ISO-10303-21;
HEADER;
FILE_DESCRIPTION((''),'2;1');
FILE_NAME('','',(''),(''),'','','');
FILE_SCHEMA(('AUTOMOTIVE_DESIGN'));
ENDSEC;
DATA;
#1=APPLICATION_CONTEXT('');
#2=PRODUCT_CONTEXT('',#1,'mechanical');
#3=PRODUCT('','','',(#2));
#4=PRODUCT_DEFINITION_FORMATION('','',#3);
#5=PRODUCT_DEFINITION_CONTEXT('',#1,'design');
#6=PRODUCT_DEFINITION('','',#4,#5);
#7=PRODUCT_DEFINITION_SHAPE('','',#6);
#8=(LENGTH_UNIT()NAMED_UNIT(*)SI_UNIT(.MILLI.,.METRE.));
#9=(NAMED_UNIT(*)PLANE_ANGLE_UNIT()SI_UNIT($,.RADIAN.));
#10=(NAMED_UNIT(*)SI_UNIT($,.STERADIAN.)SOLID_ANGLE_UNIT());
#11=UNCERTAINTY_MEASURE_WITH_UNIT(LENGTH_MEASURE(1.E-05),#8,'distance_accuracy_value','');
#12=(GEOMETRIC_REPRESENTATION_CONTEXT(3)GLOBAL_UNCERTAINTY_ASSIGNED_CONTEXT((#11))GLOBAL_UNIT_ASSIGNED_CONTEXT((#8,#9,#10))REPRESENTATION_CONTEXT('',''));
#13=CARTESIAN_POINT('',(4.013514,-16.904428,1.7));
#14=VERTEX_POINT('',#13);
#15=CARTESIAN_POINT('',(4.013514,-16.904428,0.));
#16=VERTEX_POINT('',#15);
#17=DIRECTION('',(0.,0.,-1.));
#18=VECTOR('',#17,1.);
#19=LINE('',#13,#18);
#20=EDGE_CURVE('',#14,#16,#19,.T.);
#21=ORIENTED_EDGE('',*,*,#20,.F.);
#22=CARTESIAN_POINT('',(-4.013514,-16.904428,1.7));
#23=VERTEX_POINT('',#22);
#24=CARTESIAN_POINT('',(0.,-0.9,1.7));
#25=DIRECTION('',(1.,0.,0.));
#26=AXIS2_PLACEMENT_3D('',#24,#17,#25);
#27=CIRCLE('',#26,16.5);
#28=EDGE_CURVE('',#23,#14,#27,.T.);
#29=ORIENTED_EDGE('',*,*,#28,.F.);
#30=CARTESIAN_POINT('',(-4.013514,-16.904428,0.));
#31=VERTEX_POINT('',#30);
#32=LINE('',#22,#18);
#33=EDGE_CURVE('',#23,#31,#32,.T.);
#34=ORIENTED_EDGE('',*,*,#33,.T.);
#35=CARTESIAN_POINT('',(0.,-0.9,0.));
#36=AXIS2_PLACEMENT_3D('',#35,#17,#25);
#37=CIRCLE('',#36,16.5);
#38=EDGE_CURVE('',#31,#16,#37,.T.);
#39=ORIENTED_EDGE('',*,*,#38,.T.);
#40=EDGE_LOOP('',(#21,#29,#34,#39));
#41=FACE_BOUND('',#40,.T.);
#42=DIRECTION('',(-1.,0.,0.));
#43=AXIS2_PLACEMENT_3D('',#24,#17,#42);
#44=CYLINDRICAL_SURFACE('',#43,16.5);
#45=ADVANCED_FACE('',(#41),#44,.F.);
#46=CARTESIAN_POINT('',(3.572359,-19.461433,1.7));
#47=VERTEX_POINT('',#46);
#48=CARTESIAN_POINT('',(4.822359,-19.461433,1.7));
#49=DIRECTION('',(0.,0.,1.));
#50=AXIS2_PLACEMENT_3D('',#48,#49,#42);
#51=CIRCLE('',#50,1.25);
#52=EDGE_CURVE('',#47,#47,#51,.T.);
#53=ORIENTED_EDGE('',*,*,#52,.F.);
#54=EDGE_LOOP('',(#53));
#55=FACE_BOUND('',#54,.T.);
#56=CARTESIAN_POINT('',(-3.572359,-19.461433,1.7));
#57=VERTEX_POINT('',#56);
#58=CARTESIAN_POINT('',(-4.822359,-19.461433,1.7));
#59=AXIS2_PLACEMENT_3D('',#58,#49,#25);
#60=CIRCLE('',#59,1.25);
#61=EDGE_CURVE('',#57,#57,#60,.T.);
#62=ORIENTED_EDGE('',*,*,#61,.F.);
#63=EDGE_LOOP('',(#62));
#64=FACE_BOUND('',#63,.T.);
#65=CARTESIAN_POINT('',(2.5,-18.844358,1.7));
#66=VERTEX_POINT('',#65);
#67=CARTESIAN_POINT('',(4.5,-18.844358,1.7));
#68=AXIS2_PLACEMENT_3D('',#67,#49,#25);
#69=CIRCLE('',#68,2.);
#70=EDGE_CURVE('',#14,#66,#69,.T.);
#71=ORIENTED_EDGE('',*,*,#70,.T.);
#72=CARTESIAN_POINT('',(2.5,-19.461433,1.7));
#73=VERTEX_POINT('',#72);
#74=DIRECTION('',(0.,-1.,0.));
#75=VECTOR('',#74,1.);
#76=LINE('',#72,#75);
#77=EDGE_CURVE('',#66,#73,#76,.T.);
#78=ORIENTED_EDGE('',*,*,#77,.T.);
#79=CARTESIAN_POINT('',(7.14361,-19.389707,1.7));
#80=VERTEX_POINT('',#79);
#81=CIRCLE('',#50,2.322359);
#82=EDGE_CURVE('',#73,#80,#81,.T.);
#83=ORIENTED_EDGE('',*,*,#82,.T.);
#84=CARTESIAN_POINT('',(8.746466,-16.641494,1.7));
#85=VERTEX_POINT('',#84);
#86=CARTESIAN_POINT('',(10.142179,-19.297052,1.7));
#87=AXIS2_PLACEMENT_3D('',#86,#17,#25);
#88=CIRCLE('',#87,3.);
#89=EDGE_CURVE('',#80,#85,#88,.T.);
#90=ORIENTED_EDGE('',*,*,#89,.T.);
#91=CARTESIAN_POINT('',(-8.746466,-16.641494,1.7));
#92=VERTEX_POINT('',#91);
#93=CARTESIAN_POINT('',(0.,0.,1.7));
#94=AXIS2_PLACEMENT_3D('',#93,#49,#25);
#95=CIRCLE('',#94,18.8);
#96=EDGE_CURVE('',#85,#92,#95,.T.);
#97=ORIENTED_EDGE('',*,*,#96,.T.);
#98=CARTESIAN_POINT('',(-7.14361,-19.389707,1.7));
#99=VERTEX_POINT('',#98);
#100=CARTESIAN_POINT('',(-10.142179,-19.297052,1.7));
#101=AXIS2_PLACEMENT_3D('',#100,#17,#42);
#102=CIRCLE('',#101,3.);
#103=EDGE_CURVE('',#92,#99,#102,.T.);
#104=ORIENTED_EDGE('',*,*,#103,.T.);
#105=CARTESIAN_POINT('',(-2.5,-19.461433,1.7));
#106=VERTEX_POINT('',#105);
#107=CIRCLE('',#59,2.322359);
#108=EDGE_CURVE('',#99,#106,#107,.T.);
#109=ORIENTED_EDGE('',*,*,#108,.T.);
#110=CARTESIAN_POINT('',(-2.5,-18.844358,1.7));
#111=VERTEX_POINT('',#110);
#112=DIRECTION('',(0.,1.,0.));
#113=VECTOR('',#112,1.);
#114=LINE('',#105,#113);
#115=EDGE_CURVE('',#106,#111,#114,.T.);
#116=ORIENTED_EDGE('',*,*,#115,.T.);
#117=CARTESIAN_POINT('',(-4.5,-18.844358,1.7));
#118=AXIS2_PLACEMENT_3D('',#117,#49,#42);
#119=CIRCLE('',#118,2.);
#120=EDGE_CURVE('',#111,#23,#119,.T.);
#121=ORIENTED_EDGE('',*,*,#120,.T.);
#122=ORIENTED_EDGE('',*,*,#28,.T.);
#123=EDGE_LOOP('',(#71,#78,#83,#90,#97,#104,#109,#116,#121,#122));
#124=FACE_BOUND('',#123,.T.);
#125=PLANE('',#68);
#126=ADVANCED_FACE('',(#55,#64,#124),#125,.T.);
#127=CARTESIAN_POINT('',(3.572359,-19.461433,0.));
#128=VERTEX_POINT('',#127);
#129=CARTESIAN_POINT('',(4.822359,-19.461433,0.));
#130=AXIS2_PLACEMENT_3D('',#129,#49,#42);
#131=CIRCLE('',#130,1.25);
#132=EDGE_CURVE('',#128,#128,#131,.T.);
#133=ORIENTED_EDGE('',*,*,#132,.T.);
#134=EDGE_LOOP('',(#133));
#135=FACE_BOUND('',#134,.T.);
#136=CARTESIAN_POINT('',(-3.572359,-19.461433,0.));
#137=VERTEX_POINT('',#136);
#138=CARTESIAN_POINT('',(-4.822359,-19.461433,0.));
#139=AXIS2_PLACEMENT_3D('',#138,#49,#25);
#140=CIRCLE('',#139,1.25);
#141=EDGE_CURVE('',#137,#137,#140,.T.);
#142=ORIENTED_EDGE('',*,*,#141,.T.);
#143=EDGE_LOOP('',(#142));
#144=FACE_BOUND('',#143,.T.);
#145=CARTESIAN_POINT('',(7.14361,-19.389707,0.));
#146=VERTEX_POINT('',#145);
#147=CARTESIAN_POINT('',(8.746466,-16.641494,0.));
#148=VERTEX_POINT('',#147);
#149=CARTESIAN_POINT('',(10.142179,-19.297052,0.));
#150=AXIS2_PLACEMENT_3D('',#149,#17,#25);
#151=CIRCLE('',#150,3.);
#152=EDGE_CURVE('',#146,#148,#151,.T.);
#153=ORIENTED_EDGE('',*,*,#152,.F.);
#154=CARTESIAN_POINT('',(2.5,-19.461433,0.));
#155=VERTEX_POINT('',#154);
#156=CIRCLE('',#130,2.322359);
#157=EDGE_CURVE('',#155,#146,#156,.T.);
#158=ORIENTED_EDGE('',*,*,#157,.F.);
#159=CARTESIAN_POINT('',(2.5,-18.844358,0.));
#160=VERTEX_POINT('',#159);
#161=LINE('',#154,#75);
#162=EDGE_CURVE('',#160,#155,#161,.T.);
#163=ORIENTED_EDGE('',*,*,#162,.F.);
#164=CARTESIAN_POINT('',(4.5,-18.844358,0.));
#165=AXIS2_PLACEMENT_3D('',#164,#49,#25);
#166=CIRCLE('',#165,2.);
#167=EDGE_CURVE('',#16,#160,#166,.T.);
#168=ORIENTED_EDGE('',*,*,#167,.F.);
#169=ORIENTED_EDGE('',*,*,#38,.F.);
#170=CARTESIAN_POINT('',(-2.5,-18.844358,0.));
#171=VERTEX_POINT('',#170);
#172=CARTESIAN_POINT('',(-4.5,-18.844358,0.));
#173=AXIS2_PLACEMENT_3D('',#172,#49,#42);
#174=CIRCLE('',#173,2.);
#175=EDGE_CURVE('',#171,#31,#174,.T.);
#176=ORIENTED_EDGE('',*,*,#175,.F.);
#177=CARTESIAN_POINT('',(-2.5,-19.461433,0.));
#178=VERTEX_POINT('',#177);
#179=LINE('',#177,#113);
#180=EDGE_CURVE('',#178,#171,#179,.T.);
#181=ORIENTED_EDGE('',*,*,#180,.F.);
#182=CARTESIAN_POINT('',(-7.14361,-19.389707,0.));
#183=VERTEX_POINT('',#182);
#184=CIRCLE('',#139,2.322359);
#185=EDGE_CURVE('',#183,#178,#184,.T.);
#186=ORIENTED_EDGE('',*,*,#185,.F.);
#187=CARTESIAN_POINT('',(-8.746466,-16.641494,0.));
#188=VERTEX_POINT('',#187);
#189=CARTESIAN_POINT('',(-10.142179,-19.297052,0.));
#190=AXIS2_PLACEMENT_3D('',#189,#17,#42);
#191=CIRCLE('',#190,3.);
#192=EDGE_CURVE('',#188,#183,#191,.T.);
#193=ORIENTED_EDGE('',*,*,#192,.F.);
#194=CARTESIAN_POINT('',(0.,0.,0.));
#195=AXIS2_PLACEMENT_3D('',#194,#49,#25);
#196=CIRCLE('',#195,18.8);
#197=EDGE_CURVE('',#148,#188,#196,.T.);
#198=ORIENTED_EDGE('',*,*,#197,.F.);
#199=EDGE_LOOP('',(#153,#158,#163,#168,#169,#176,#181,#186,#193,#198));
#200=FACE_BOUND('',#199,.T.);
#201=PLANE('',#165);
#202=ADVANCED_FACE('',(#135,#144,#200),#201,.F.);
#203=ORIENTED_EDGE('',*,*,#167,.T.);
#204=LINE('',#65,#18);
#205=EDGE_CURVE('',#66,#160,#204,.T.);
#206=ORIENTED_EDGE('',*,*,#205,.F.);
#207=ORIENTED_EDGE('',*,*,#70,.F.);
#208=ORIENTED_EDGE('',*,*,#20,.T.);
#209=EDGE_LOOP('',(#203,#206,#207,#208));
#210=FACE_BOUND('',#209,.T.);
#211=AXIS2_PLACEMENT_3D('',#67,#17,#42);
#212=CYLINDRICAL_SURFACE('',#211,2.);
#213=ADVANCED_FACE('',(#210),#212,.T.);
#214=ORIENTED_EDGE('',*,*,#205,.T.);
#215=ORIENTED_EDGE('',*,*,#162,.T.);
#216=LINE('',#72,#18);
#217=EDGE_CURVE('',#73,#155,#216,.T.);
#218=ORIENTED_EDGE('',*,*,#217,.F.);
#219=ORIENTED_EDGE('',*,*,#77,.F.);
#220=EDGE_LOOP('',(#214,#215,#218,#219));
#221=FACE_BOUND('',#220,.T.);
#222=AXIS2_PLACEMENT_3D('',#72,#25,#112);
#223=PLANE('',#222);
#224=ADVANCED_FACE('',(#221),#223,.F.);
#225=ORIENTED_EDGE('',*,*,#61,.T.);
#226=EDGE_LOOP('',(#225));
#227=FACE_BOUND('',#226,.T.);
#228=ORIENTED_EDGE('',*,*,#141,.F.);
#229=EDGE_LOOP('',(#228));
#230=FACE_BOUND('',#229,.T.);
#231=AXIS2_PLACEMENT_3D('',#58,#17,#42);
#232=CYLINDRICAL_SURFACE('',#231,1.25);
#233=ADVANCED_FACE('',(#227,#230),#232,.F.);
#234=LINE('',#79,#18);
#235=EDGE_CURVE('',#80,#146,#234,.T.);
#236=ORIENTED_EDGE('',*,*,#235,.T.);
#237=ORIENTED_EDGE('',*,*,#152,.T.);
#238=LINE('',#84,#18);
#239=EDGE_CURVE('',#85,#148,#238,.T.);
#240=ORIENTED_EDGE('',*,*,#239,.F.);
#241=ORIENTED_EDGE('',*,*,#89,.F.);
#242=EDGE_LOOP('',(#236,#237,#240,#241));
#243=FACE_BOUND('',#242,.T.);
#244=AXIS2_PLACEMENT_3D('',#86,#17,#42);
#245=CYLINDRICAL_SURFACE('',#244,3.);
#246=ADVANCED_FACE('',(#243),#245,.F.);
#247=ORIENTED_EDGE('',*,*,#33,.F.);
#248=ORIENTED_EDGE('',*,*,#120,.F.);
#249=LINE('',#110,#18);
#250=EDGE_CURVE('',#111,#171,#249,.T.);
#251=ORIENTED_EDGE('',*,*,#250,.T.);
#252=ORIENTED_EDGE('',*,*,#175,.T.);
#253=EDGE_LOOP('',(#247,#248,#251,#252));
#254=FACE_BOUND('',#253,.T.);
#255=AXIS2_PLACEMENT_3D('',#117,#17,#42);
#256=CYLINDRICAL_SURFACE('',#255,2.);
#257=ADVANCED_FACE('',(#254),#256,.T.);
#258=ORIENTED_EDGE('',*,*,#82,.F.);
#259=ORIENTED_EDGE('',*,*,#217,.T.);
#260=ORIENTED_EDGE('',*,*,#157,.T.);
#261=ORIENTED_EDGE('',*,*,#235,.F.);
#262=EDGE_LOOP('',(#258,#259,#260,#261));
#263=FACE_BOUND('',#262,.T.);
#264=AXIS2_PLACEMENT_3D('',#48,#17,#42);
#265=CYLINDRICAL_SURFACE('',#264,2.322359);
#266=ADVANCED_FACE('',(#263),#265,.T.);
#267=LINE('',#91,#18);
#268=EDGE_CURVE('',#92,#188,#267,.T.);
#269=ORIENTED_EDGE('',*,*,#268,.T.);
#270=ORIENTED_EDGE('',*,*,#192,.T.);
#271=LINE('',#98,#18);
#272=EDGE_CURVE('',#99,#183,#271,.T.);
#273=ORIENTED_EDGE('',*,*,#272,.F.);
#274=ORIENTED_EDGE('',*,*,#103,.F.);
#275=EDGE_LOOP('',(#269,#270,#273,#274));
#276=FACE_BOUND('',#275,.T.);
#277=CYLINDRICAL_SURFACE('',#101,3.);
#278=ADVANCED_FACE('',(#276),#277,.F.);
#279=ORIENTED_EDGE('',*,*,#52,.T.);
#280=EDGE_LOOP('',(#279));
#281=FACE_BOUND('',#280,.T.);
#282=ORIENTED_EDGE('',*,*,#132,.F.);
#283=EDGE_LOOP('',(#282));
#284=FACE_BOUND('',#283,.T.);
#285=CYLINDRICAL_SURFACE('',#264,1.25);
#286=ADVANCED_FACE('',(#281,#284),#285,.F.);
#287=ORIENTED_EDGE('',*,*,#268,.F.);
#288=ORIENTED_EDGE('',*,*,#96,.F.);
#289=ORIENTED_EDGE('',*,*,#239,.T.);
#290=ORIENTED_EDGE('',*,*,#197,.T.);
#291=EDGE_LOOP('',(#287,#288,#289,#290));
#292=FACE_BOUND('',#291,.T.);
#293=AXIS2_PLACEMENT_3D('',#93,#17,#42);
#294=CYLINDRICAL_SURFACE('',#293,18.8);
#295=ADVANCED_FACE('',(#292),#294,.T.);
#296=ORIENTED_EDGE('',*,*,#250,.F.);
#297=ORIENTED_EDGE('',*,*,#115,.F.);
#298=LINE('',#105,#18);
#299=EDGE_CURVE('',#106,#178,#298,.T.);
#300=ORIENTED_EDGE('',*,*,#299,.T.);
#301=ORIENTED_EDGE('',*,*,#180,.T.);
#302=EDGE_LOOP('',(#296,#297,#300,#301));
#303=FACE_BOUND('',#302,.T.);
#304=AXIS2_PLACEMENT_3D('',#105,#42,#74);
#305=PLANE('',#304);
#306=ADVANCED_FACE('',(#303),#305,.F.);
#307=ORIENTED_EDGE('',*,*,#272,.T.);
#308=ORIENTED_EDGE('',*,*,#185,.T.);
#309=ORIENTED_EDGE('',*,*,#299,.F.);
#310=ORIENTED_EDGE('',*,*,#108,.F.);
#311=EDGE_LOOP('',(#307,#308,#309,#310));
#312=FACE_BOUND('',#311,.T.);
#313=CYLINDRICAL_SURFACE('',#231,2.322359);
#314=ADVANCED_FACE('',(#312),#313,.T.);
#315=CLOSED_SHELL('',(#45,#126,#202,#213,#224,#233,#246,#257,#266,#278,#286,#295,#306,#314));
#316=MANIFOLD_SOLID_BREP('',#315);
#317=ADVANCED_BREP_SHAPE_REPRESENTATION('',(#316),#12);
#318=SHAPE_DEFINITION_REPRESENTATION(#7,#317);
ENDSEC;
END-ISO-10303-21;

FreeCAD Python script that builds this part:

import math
import FreeCAD as App
import Part
import Sketcher

V = App.Vector
Q = App.Units.Quantity

doc = App.newDocument("Part")
body = doc.addObject("PartDesign::Body", "Body")

sketch1 = body.newObject("Sketcher::SketchObject", "Sketch")
sketch1.AttachmentSupport = (doc.getObject("XY_Plane"), [""])
sketch1.MapMode = "FlatFace"
sketch1.addGeometry(Part.LineSegment(V(-2.5, -19.5, 0), V(-2.5, -18.8, 0)), False)
sketch1.addGeometry(Part.ArcOfCircle(Part.Circle(V(-4.5, -18.8, 0), V(0, 0, 1), 2), math.radians(0), math.radians(76)), False)
sketch1.addGeometry(Part.ArcOfCircle(Part.Circle(V(0, -0.9, 0), V(0, 0, 1), 16.5), math.radians(-76), math.radians(256)), False)
sketch1.addGeometry(Part.ArcOfCircle(Part.Circle(V(4.5, -18.8, 0), V(0, 0, 1), 2), math.radians(104), math.radians(180)), False)
sketch1.addGeometry(Part.LineSegment(V(2.5, -18.8, 0), V(2.5, -19.5, 0)), False)
sketch1.addGeometry(Part.ArcOfCircle(Part.Circle(V(4.8, -19.5, 0), V(0, 0, 1), 2.3), math.radians(180), math.radians(362)), False)
sketch1.addGeometry(Part.ArcOfCircle(Part.Circle(V(10.1, -19.3, 0), V(0, 0, 1), 3), math.radians(118), math.radians(182)), False)
sketch1.addGeometry(Part.ArcOfCircle(Part.Circle(V(0, 0, 0), V(0, 0, 1), 18.8), math.radians(-62), math.radians(242)), False)
sketch1.addGeometry(Part.ArcOfCircle(Part.Circle(V(-10.1, -19.3, 0), V(0, 0, 1), 3), math.radians(-2), math.radians(62)), False)
sketch1.addGeometry(Part.ArcOfCircle(Part.Circle(V(-4.8, -19.5, 0), V(0, 0, 1), 2.3), math.radians(178), math.radians(360)), False)
sketch1.addGeometry(Part.Circle(V(-4.8, -19.5, 0), V(0, 0, 1), 1.2), False)
sketch1.addGeometry(Part.Circle(V(4.8, -19.5, 0), V(0, 0, 1), 1.2), False)
sketch1.addConstraint(Sketcher.Constraint("Tangent", 0, 2, 1, 1))
sketch1.addConstraint(Sketcher.Constraint("Tangent", 1, 2, 2, 2))
sketch1.addConstraint(Sketcher.Constraint("Tangent", 2, 1, 3, 1))
sketch1.addConstraint(Sketcher.Constraint("Tangent", 3, 2, 4, 1))
sketch1.addConstraint(Sketcher.Constraint("Tangent", 4, 2, 5, 1))
sketch1.addConstraint(Sketcher.Constraint("Tangent", 5, 2, 6, 2))
sketch1.addConstraint(Sketcher.Constraint("Tangent", 6, 1, 7, 1))
sketch1.addConstraint(Sketcher.Constraint("Tangent", 7, 2, 8, 2))
sketch1.addConstraint(Sketcher.Constraint("Tangent", 8, 1, 9, 1))
sketch1.addConstraint(Sketcher.Constraint("Tangent", 9, 2, 0, 1))
sketch1.addConstraint(Sketcher.Constraint("Vertical", 0))
sketch1.addConstraint(Sketcher.Constraint("Vertical", 4))
sketch1.addConstraint(Sketcher.Constraint("Coincident", 7, 3, -1, 1))
sketch1.addConstraint(Sketcher.Constraint("Coincident", 10, 3, 9, 3))
sketch1.addConstraint(Sketcher.Constraint("Coincident", 11, 3, 5, 3))
sketch1.addConstraint(Sketcher.Constraint("Equal", 1, 3))
sketch1.addConstraint(Sketcher.Constraint("Equal", 6, 8))
sketch1.addConstraint(Sketcher.Constraint("Equal", 5, 9))
sketch1.addConstraint(Sketcher.Constraint("Equal", 10, 11))
sketch1.addConstraint(Sketcher.Constraint("Symmetric", 1, 3, 3, 3, -2))
sketch1.addConstraint(Sketcher.Constraint("Horizontal", 6, 3, 8, 3))
sketch1.addConstraint(Sketcher.Constraint("Radius", 1, Q("2 mm")))
sketch1.addConstraint(Sketcher.Constraint("Radius", 6, Q("3 mm")))
sketch1.addConstraint(Sketcher.Constraint("Diameter", 10, Q("2.5 mm")))
sketch1.addConstraint(Sketcher.Constraint("Radius", 2, Q("16.5 mm")))
sketch1.addConstraint(Sketcher.Constraint("Radius", 7, Q("18.8 mm")))
sketch1.addConstraint(Sketcher.Constraint("DistanceX", 1, 3, 3, 3, Q("9 mm")))
sketch1.addConstraint(Sketcher.Constraint("DistanceY", 2, 3, -1, 1, Q("0.9 mm")))
sketch1.addConstraint(Sketcher.Constraint("Radius", 5, Q("2.322359 mm")))
sketch1.addConstraint(Sketcher.Constraint("DistanceY", 0, 1, 0, 2, Q("0.617074 mm")))
pad1 = body.newObject("PartDesign::Pad", "Pad")
pad1.Profile = sketch1
pad1.Length = 1.7

doc.recompute()
